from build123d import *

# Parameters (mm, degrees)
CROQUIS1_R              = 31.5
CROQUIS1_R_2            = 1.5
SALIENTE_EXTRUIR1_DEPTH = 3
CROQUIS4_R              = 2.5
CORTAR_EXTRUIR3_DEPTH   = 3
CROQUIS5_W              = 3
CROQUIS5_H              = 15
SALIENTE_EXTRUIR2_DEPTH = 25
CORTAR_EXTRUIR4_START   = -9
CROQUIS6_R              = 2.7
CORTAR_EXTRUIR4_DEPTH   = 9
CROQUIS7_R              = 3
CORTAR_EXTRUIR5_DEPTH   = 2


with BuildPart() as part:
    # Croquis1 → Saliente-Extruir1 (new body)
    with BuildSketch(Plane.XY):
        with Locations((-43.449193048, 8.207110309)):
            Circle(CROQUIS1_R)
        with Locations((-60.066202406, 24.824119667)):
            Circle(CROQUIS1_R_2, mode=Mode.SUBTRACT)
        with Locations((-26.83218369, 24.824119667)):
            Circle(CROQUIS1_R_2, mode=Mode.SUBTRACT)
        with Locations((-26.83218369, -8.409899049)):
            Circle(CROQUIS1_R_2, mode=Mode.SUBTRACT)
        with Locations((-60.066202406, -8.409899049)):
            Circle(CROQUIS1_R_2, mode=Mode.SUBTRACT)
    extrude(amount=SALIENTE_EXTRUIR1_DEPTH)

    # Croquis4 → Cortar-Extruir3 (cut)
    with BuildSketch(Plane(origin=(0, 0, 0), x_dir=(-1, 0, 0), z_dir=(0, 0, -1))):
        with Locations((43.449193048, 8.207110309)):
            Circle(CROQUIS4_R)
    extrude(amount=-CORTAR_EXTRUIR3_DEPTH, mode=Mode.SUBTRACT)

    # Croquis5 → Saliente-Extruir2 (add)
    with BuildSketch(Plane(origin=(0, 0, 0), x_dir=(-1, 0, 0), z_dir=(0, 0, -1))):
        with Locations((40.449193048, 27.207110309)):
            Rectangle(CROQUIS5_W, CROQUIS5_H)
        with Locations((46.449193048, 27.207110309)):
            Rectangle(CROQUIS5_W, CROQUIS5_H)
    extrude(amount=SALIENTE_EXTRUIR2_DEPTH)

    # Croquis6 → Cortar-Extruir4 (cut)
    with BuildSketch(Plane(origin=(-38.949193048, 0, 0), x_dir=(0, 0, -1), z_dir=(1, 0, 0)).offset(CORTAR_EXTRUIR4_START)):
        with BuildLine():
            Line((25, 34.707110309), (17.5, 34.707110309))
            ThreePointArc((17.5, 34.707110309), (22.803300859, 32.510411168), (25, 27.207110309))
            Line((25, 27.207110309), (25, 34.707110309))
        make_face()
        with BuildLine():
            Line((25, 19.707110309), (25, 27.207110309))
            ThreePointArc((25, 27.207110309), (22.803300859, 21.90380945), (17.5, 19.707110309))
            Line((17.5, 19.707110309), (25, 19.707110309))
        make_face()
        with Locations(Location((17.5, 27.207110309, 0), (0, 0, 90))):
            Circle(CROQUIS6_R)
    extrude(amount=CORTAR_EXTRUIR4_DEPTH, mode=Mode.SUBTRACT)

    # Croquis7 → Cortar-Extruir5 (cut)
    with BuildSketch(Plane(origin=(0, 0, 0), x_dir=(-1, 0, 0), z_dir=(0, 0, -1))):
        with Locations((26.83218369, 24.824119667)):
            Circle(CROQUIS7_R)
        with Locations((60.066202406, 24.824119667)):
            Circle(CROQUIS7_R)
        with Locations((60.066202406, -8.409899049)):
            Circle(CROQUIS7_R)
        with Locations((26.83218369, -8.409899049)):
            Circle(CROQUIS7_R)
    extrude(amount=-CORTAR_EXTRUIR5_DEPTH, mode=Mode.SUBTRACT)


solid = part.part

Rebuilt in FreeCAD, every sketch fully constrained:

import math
import FreeCAD as App
import Part
import Sketcher
from FreeCAD import Vector

doc = App.newDocument("Part")
body = doc.addObject("PartDesign::Body", "Body")

# Sketch on XY plane
sketch1 = doc.addObject("Sketcher::SketchObject", "Sketch")
body.addObject(sketch1)
sketch1.AttachmentSupport = (doc.XY_Plane, [""])
sketch1.MapMode = "FlatFace"
sketch1.addGeometry([
    Part.Circle(Vector(-43.4, 8.2, 0), Vector(0, 0, 1), 31.5),  # 0
    Part.Circle(Vector(-60.1, -8.4, 0), Vector(0, 0, 1), 1.5),  # 1
    Part.Circle(Vector(-26.8, -8.4, 0), Vector(0, 0, 1), 1.5),  # 2
    Part.Circle(Vector(-60.1, 24.8, 0), Vector(0, 0, 1), 1.5),  # 3
    Part.Circle(Vector(-26.8, 24.8, 0), Vector(0, 0, 1), 1.5),  # 4
], False)
sketch1.addConstraint([
    Sketcher.Constraint("Equal", 1, 2),
    Sketcher.Constraint("Equal", 2, 3),
    Sketcher.Constraint("Equal", 3, 4),
    Sketcher.Constraint("Horizontal", 1, 3, 2, 3),
    Sketcher.Constraint("Horizontal", 3, 3, 4, 3),
    Sketcher.Constraint("Vertical", 1, 3, 3, 3),
    Sketcher.Constraint("Vertical", 2, 3, 4, 3),
    Sketcher.Constraint("Diameter", 0, 63.0),
    Sketcher.Constraint("Diameter", 1, 3.0),
    Sketcher.Constraint("DistanceY", 1, 3, -1, 1, 8.409899),
    Sketcher.Constraint("DistanceY", -1, 1, 0, 3, 8.20711),
    Sketcher.Constraint("DistanceY", -1, 1, 3, 3, 24.82412),
    Sketcher.Constraint("DistanceX", 1, 3, 0, 3, 16.617009),
    Sketcher.Constraint("DistanceX", 0, 3, 2, 3, 16.617009),
    Sketcher.Constraint("DistanceX", 0, 3, -1, 1, 43.449193),
])
pad1 = doc.addObject("PartDesign::Pad", "Pad")
body.addObject(pad1)
pad1.Profile = sketch1
pad1.Length = 3

# Sketch on XY plane
sketch2 = doc.addObject("Sketcher::SketchObject", "Sketch001")
body.addObject(sketch2)
sketch2.AttachmentSupport = (doc.XY_Plane, [""])
sketch2.MapMode = "FlatFace"
sketch2.addGeometry(Part.Circle(Vector(-43.4, 8.2, 0), Vector(0, 0, 1), 2.5), False)
sketch2.addConstraint([
    Sketcher.Constraint("Diameter", 0, 5.0),
    Sketcher.Constraint("DistanceY", -1, 1, 0, 3, 8.20711),
    Sketcher.Constraint("DistanceX", 0, 3, -1, 1, 43.449193),
])
pocket1 = doc.addObject("PartDesign::Pocket", "Pocket")
body.addObject(pocket1)
pocket1.Profile = sketch2
pocket1.Length = 3
pocket1.Reversed = True

# Sketch on XY plane
sketch3 = doc.addObject("Sketcher::SketchObject", "Sketch002")
body.addObject(sketch3)
sketch3.AttachmentSupport = (doc.XY_Plane, [""])
sketch3.MapMode = "FlatFace"
sketch3.addGeometry([
    Part.LineSegment(Vector(-38.9, 34.7, 0), Vector(-38.9, 19.7, 0)),  # 0
    Part.LineSegment(Vector(-38.9, 19.7, 0), Vector(-41.9, 19.7, 0)),  # 1
    Part.LineSegment(Vector(-41.9, 19.7, 0), Vector(-41.9, 34.7, 0)),  # 2
    Part.LineSegment(Vector(-41.9, 34.7, 0), Vector(-38.9, 34.7, 0)),  # 3
    Part.LineSegment(Vector(-44.9, 34.7, 0), Vector(-44.9, 19.7, 0)),  # 4
    Part.LineSegment(Vector(-44.9, 19.7, 0), Vector(-47.9, 19.7, 0)),  # 5
    Part.LineSegment(Vector(-47.9, 19.7, 0), Vector(-47.9, 34.7, 0)),  # 6
    Part.LineSegment(Vector(-47.9, 34.7, 0), Vector(-44.9, 34.7, 0)),  # 7
], False)
sketch3.addConstraint([
    Sketcher.Constraint("Coincident", 0, 2, 1, 1),
    Sketcher.Constraint("Coincident", 1, 2, 2, 1),
    Sketcher.Constraint("Coincident", 2, 2, 3, 1),
    Sketcher.Constraint("Coincident", 3, 2, 0, 1),
    Sketcher.Constraint("Coincident", 4, 2, 5, 1),
    Sketcher.Constraint("Coincident", 5, 2, 6, 1),
    Sketcher.Constraint("Coincident", 6, 2, 7, 1),
    Sketcher.Constraint("Coincident", 7, 2, 4, 1),
    Sketcher.Constraint("Vertical", 0),
    Sketcher.Constraint("Horizontal", 1),
    Sketcher.Constraint("Vertical", 2),
    Sketcher.Constraint("Horizontal", 3),
    Sketcher.Constraint("Vertical", 4),
    Sketcher.Constraint("Horizontal", 5),
    Sketcher.Constraint("Vertical", 6),
    Sketcher.Constraint("Horizontal", 7),
    Sketcher.Constraint("Horizontal", 1, 2, 4, 2),
    Sketcher.Constraint("Horizontal", 3, 2, 6, 2),
    Sketcher.Constraint("Equal", 3, 5),
    Sketcher.Constraint("DistanceX", 1, 2, 1, 1, 3.0),
    Sketcher.Constraint("DistanceY", 0, 2, 0, 1, 15.0),
    Sketcher.Constraint("DistanceX", 4, 2, 1, 2, 3.0),
    Sketcher.Constraint("DistanceY", -1, 1, 0, 2, 19.70711),
    Sketcher.Constraint("DistanceX", 0, 2, -1, 1, 38.949193),
])
pad2 = doc.addObject("PartDesign::Pad", "Pad001")
body.addObject(pad2)
pad2.Profile = sketch3
pad2.Length = 25
pad2.Reversed = True

# Sketch on YZ plane
sketch4 = doc.addObject("Sketcher::SketchObject", "Sketch003")
body.addObject(sketch4)
sketch4.AttachmentSupport = (doc.YZ_Plane, [""])
sketch4.MapMode = "FlatFace"
sketch4.AttachmentOffset = App.Placement(Vector(0, 0, -47.949193), App.Rotation())
sketch4.addGeometry([
    Part.LineSegment(Vector(34.7, -25, 0), Vector(34.7, -17.5, 0)),  # 0
    Part.ArcOfCircle(Part.Circle(Vector(27.2, -17.5, 0), Vector(0, 0, 1), 7.5), math.radians(-90), math.radians(0)),  # 1
    Part.LineSegment(Vector(27.2, -25, 0), Vector(34.7, -25, 0)),  # 2
    Part.LineSegment(Vector(19.7, -25, 0), Vector(27.2, -25, 0)),  # 3
    Part.ArcOfCircle(Part.Circle(Vector(27.2, -17.5, 0), Vector(0, 0, 1), 7.5), math.radians(180), math.radians(270)),  # 4
    Part.LineSegment(Vector(19.7, -17.5, 0), Vector(19.7, -25, 0)),  # 5
    Part.Circle(Vector(27.2, -17.5, 0), Vector(0, 0, 1), 2.7),  # 6
], False)
sketch4.addConstraint([
    Sketcher.Constraint("Tangent", 0, 2, 1, 2),
    Sketcher.Constraint("Tangent", 1, 1, 2, 1),
    Sketcher.Constraint("Coincident", 2, 2, 0, 1),
    Sketcher.Constraint("Tangent", 3, 2, 4, 2),
    Sketcher.Constraint("Tangent", 4, 1, 5, 1),
    Sketcher.Constraint("Coincident", 5, 2, 3, 1),
    Sketcher.Constraint("Vertical", 0),
    Sketcher.Constraint("Horizontal", 2),
    Sketcher.Constraint("Horizontal", 3),
    Sketcher.Constraint("Vertical", 5),
    Sketcher.Constraint("Coincident", 4, 3, 1, 3),
    Sketcher.Constraint("Coincident", 6, 3, 1, 3),
    Sketcher.Constraint("Equal", 1, 4),
    Sketcher.Constraint("Diameter", 6, 5.4),
    Sketcher.Constraint("Radius", 1, 7.5),
    Sketcher.Constraint("DistanceY", 1, 1, -1, 1, 25.0),
    Sketcher.Constraint("DistanceX", -1, 1, 1, 3, 27.20711),
])
pocket2 = doc.addObject("PartDesign::Pocket", "Pocket001")
body.addObject(pocket2)
pocket2.Profile = sketch4
pocket2.Length = 9
pocket2.Reversed = True

# Sketch on XY plane
sketch5 = doc.addObject("Sketcher::SketchObject", "Sketch004")
body.addObject(sketch5)
sketch5.AttachmentSupport = (doc.XY_Plane, [""])
sketch5.MapMode = "FlatFace"
sketch5.addGeometry([
    Part.Circle(Vector(-26.8, 24.8, 0), Vector(0, 0, 1), 3),
    Part.Circle(Vector(-60.1, 24.8, 0), Vector(0, 0, 1), 3),
    Part.Circle(Vector(-60.1, -8.4, 0), Vector(0, 0, 1), 3),
    Part.Circle(Vector(-26.8, -8.4, 0), Vector(0, 0, 1), 3),
], False)
sketch5.addConstraint([
    Sketcher.Constraint("Equal", 0, 1),
    Sketcher.Constraint("Equal", 1, 2),
    Sketcher.Constraint("Equal", 2, 3),
    Sketcher.Constraint("Horizontal", 0, 3, 1, 3),
    Sketcher.Constraint("Horizontal", 2, 3, 3, 3),
    Sketcher.Constraint("Vertical", 1, 3, 2, 3),
    Sketcher.Constraint("Vertical", 0, 3, 3, 3),
    Sketcher.Constraint("Diameter", 0, 6.0),
    Sketcher.Constraint("DistanceY", 2, 3, -1, 1, 8.409899),
    Sketcher.Constraint("DistanceY", -1, 1, 0, 3, 24.82412),
    Sketcher.Constraint("DistanceX", 1, 3, 0, 3, 33.234019),
    Sketcher.Constraint("DistanceX", 0, 3, -1, 1, 26.832184),
])
pocket3 = doc.addObject("PartDesign::Pocket", "Pocket002")
body.addObject(pocket3)
pocket3.Profile = sketch5
pocket3.Length = 2
pocket3.Reversed = True

doc.recompute()
